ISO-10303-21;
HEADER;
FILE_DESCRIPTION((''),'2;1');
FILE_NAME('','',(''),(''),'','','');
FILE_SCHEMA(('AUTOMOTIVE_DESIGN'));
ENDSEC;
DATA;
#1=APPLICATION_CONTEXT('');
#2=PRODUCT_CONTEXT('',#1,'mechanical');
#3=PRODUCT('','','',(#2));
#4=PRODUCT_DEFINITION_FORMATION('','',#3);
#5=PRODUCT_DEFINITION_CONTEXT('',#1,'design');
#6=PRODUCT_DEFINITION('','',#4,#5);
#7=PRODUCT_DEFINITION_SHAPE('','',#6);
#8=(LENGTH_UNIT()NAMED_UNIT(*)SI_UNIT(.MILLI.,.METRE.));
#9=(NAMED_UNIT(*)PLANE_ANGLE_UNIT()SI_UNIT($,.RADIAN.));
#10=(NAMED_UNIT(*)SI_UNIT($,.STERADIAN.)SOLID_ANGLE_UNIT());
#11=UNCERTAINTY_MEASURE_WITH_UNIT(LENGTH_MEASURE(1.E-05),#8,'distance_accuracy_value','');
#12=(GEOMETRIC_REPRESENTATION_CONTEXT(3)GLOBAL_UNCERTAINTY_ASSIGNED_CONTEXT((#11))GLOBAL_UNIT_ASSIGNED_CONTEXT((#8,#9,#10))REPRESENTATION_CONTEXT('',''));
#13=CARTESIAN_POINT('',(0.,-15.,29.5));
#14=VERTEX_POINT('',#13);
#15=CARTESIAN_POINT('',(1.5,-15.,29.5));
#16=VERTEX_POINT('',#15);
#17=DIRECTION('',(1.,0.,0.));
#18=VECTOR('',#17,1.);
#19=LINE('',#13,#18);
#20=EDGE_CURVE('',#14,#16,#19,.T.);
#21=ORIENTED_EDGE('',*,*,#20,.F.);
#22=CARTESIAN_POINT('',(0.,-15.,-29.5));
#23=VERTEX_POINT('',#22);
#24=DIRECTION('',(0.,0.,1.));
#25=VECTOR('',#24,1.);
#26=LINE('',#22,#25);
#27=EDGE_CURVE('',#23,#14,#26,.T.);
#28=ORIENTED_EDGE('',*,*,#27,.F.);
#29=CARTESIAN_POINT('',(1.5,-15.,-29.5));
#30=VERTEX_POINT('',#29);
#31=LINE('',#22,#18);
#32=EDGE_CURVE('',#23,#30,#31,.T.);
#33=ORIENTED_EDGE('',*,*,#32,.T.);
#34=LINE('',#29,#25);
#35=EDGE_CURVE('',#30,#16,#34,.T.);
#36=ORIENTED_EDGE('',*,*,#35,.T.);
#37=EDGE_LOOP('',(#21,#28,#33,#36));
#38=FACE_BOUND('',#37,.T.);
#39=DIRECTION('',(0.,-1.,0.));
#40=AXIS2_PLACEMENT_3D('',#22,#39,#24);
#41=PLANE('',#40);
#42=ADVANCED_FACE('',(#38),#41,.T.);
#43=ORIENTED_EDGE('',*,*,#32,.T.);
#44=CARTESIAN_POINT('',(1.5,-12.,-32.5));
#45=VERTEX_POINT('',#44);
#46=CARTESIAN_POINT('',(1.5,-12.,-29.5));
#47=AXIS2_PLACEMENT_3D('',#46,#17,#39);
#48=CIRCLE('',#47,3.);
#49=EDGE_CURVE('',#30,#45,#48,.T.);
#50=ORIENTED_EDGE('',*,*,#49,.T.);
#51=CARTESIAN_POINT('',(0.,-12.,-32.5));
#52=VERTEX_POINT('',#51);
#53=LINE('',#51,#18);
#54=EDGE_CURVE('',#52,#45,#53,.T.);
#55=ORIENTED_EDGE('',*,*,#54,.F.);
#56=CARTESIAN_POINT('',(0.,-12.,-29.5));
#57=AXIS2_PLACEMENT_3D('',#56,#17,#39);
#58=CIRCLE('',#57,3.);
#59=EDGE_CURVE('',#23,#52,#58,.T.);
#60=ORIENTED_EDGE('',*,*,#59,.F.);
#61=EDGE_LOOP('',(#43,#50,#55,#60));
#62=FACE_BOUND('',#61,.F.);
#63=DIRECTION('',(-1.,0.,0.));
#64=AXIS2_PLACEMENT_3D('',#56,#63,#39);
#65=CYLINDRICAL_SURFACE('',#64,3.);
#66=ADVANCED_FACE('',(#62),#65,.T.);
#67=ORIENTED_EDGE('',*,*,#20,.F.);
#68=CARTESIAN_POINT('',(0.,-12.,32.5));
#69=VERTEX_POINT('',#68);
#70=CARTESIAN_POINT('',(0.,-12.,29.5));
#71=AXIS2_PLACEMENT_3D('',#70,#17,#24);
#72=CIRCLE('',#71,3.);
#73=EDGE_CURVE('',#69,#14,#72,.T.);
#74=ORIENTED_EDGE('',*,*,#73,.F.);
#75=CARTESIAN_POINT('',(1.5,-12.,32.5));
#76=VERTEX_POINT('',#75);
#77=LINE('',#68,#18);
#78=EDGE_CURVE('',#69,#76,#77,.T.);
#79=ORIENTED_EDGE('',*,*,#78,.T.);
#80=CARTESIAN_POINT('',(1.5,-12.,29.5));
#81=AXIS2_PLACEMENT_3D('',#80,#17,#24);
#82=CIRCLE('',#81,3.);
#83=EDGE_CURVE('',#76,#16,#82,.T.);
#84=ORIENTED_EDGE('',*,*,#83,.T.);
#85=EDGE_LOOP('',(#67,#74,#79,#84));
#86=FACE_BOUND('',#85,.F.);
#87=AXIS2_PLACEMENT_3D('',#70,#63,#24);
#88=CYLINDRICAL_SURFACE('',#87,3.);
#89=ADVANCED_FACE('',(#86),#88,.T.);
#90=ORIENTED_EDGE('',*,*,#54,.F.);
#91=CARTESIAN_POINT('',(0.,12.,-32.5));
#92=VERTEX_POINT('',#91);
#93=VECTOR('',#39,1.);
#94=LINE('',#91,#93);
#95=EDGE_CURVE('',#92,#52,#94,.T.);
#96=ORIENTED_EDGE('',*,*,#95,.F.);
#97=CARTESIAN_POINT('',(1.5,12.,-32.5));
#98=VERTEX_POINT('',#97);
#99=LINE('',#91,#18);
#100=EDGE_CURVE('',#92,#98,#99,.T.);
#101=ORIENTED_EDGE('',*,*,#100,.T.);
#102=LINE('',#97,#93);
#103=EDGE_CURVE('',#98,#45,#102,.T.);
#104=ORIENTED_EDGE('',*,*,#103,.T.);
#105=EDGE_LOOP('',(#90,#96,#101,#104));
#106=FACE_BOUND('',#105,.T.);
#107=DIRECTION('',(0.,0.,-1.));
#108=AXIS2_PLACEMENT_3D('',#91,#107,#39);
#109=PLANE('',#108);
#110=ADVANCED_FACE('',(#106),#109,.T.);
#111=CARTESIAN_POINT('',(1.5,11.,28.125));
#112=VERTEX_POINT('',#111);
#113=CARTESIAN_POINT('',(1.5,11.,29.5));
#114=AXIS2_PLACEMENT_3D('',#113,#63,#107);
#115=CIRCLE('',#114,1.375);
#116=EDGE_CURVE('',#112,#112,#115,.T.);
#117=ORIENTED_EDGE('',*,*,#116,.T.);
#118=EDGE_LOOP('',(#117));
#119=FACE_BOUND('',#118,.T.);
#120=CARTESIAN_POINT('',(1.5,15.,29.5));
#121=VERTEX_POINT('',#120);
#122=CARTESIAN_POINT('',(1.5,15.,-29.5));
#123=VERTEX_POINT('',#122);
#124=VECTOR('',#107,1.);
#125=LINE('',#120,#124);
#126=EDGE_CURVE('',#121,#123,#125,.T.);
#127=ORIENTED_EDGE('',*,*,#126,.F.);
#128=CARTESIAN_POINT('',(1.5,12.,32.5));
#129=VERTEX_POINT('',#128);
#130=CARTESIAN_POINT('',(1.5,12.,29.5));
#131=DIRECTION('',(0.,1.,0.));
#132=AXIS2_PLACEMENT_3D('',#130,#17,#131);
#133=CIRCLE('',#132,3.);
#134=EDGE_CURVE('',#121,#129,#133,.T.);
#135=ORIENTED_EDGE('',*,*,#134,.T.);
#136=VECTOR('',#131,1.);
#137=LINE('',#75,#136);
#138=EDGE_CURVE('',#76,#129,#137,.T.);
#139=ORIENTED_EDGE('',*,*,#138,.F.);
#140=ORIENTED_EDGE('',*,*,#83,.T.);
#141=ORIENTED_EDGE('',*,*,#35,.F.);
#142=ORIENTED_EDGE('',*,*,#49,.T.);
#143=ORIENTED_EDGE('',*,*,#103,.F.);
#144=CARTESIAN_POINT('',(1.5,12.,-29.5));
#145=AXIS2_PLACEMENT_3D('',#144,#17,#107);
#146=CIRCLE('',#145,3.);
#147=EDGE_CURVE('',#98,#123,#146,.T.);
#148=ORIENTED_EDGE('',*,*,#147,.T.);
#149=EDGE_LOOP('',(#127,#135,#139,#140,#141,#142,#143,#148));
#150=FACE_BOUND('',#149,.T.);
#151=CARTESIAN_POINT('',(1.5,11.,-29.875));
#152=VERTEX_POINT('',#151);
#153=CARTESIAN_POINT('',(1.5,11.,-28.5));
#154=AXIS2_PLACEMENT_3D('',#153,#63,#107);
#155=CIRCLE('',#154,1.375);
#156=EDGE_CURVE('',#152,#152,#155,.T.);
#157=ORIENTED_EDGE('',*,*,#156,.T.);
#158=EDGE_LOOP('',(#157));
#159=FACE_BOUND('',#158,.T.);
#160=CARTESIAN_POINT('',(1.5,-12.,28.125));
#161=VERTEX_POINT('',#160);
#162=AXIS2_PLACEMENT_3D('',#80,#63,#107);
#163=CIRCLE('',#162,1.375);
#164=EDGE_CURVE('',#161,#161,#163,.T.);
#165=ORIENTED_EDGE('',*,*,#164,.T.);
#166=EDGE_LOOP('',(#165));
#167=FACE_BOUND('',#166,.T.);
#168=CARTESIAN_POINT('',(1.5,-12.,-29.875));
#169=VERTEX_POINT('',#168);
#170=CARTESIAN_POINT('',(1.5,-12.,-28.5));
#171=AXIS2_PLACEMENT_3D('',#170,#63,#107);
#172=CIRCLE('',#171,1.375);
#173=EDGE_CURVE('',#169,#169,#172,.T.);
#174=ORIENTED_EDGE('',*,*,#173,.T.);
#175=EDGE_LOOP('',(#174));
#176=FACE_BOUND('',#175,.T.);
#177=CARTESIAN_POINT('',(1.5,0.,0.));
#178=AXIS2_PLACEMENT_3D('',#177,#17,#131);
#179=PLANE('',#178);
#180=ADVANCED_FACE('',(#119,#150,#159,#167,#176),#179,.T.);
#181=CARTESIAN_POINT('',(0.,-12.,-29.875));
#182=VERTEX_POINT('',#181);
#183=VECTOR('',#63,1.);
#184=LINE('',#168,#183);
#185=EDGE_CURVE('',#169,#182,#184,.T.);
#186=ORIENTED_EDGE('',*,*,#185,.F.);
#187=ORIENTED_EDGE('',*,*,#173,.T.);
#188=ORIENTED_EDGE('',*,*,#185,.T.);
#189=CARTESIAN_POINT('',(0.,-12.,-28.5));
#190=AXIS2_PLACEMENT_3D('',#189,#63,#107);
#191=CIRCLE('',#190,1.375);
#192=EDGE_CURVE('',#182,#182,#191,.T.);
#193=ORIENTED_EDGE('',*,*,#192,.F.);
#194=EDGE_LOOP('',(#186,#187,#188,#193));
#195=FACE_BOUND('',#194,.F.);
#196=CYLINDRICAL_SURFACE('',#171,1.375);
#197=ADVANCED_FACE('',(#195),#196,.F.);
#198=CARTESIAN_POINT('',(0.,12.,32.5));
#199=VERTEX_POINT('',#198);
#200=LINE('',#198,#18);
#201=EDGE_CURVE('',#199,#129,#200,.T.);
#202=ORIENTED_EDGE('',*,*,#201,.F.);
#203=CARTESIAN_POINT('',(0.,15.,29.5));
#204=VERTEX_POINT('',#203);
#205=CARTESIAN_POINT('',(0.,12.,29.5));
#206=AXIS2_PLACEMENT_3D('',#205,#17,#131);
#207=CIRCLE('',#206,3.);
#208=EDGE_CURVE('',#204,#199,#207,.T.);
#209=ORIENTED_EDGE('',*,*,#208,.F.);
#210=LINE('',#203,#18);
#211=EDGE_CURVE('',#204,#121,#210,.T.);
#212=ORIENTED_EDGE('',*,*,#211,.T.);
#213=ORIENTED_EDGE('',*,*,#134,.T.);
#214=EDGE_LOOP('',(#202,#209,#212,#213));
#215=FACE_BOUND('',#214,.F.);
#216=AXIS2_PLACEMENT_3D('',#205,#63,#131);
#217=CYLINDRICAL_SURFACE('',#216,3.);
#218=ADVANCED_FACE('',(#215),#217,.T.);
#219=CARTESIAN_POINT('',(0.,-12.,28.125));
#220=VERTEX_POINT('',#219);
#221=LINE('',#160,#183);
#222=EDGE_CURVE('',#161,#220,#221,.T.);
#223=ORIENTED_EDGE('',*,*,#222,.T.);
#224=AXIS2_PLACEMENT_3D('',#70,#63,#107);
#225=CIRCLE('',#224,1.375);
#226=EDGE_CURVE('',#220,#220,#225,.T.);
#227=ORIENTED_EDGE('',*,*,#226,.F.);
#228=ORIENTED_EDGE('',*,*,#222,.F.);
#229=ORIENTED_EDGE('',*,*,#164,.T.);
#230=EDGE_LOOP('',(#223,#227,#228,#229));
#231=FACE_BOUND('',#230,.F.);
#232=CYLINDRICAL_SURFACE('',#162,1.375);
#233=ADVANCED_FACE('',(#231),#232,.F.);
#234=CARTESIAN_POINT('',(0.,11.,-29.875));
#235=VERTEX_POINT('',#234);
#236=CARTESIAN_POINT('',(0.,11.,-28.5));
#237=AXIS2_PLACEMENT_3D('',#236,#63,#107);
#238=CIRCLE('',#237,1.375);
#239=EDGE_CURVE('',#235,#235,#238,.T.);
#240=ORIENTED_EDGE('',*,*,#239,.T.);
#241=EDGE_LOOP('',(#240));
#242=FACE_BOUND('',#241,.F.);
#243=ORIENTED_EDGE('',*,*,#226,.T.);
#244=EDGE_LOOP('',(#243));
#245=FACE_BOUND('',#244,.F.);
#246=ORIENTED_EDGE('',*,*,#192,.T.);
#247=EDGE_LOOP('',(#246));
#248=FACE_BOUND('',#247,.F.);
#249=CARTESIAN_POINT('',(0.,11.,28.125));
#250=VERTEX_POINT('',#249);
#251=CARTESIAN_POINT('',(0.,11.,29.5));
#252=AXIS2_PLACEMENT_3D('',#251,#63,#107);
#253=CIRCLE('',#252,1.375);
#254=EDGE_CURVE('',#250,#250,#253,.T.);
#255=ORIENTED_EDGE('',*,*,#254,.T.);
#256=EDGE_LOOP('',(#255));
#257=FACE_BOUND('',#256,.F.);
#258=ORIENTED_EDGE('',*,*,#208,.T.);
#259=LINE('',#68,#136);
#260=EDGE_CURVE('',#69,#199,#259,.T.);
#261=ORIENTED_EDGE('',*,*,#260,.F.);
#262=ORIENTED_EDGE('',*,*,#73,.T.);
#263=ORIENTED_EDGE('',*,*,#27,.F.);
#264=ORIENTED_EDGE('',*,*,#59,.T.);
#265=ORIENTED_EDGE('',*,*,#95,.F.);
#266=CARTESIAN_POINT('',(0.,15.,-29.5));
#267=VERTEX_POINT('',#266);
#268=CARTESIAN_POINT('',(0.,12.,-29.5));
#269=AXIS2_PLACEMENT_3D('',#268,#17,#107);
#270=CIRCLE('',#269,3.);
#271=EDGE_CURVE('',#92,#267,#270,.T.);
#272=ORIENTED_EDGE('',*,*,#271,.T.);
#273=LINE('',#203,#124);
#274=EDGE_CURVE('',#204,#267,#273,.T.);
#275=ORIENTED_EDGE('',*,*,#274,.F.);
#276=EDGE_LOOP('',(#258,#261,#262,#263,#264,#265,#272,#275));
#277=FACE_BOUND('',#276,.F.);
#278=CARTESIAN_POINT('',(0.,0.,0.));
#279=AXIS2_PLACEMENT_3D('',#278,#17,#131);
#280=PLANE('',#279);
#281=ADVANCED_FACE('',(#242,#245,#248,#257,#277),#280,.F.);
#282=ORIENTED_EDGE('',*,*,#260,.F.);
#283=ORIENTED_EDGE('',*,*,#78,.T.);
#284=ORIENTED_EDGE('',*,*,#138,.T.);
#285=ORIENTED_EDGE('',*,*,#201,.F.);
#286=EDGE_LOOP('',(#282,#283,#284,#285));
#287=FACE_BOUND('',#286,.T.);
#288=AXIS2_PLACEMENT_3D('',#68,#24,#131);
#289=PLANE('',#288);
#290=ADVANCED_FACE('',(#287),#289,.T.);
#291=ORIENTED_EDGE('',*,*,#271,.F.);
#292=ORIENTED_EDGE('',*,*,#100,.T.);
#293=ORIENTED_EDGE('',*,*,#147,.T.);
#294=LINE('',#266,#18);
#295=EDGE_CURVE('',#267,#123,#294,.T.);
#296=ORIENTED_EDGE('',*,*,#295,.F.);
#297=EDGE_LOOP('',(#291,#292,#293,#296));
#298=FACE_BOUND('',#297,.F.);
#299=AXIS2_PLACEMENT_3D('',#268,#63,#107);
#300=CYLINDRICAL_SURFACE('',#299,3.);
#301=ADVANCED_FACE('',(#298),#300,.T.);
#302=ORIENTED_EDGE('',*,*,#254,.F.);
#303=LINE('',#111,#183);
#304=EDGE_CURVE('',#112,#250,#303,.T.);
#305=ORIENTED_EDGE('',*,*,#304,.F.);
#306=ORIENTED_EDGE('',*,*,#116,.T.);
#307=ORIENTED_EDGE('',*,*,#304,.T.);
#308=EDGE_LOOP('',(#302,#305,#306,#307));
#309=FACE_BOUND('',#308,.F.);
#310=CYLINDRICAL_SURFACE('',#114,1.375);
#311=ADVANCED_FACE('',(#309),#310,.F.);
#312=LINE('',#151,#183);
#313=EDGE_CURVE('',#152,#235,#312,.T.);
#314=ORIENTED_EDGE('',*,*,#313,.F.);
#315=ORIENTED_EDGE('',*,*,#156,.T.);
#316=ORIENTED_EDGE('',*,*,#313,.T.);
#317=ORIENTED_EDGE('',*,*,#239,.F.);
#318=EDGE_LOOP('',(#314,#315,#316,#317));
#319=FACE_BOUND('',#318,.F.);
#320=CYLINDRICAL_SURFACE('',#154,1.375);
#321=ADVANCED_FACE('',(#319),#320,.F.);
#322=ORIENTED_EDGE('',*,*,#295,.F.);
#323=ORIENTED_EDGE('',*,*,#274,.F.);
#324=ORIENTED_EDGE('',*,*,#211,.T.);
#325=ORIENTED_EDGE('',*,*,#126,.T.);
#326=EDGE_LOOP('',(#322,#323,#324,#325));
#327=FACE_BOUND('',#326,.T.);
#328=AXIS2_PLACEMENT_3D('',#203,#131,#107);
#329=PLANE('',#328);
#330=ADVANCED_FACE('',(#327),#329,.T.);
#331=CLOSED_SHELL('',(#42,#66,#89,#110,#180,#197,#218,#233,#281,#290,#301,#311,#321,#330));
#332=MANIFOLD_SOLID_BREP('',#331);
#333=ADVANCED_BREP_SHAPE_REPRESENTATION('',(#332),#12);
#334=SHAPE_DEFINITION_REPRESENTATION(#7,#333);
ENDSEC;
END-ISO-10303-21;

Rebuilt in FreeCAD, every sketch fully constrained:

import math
import FreeCAD as App
import Part
import Sketcher

doc = App.newDocument("Part")
params = doc.addObject("Spreadsheet::Sheet", "Params")
for row, (alias, value) in enumerate([
    ("sketch1_radius", "3 mm"),
    ("sketch1_height", "59 mm"),
    ("pad1_length", "1.5 mm"),
    ("sketch2_diameter", "2.75 mm"),
    ("hole_diameter", "2.75 mm"),
], start=1):
    params.set(f"A{row}", alias)
    params.set(f"B{row}", "=" + value)
    params.setAlias(f"B{row}", alias)

body = doc.addObject("PartDesign::Body", "Body")

sketch1 = body.newObject("Sketcher::SketchObject", "Sketch")
sketch1.AttachmentSupport = (doc.getObject("YZ_Plane"), [""])
sketch1.MapMode = "FlatFace"
sketch1.addGeometry([
    Part.LineSegment(App.Vector(12, 32.5, 0), App.Vector(-12, 32.5, 0)),
    Part.ArcOfCircle(Part.Circle(App.Vector(-12, 29.5, 0), App.Vector(0, 0, 1), 3), math.radians(90), math.radians(180)),
    Part.LineSegment(App.Vector(-15, 29.5, 0), App.Vector(-15, -29.5, 0)),
    Part.ArcOfCircle(Part.Circle(App.Vector(-12, -29.5, 0), App.Vector(0, 0, 1), 3), math.radians(180), math.radians(270)),
    Part.LineSegment(App.Vector(-12, -32.5, 0), App.Vector(12, -32.5, 0)),
    Part.ArcOfCircle(Part.Circle(App.Vector(12, -29.5, 0), App.Vector(0, 0, 1), 3), math.radians(-90), math.radians(0)),
    Part.LineSegment(App.Vector(15, -29.5, 0), App.Vector(15, 29.5, 0)),
    Part.ArcOfCircle(Part.Circle(App.Vector(12, 29.5, 0), App.Vector(0, 0, 1), 3), math.radians(0), math.radians(90)),
], False)
sketch1.addConstraint([
    Sketcher.Constraint("Tangent", 0, 2, 1, 1),
    Sketcher.Constraint("Tangent", 1, 2, 2, 1),
    Sketcher.Constraint("Tangent", 2, 2, 3, 1),
    Sketcher.Constraint("Tangent", 3, 2, 4, 1),
    Sketcher.Constraint("Tangent", 4, 2, 5, 1),
    Sketcher.Constraint("Tangent", 5, 2, 6, 1),
    Sketcher.Constraint("Tangent", 6, 2, 7, 1),
    Sketcher.Constraint("Tangent", 7, 2, 0, 1),
    Sketcher.Constraint("Horizontal", 0),
    Sketcher.Constraint("Vertical", 2),
    Sketcher.Constraint("Horizontal", 4),
    Sketcher.Constraint("Vertical", 6),
    Sketcher.Constraint("Equal", 1, 3),
    Sketcher.Constraint("Equal", 3, 5),
    Sketcher.Constraint("Equal", 5, 7),
    Sketcher.Constraint("Symmetric", 1, 3, 5, 3, -1, 1),
    Sketcher.Constraint("Radius", 1, 3.0),
    Sketcher.Constraint("DistanceX", 2, 2, 5, 2, 30.0),
    Sketcher.Constraint("DistanceY", 2, 2, 2, 1, 59.0),
])
sketch1.setExpression("Constraints[16]", "Params.sketch1_radius")
sketch1.setExpression("Constraints[18]", "Params.sketch1_height")
pad1 = body.newObject("PartDesign::Pad", "Pad")
pad1.Profile = sketch1
pad1.setExpression("Length", "Params.pad1_length")

sketch2 = body.newObject("Sketcher::SketchObject", "Sketch001")
sketch2.AttachmentSupport = (doc.getObject("YZ_Plane"), [""])
sketch2.MapMode = "FlatFace"
sketch2.AttachmentOffset = App.Placement(App.Vector(0, 0, 1.5), App.Rotation())
sketch2.addGeometry([
    Part.Circle(App.Vector(11, 29.5, 0), App.Vector(0, 0, 1), 1.4),
    Part.Circle(App.Vector(11, -28.5, 0), App.Vector(0, 0, 1), 1.4),
    Part.Circle(App.Vector(-12, 29.5, 0), App.Vector(0, 0, 1), 1.4),
    Part.Circle(App.Vector(-12, -28.5, 0), App.Vector(0, 0, 1), 1.4),
], False)
sketch2.addConstraint([
    Sketcher.Constraint("Equal", 0, 1),
    Sketcher.Constraint("Equal", 1, 2),
    Sketcher.Constraint("Equal", 2, 3),
    Sketcher.Constraint("Horizontal", 0, 3, 2, 3),
    Sketcher.Constraint("Horizontal", 1, 3, 3, 3),
    Sketcher.Constraint("Vertical", 0, 3, 1, 3),
    Sketcher.Constraint("Vertical", 2, 3, 3, 3),
    Sketcher.Constraint("Diameter", 0, 2.75),
    Sketcher.Constraint("DistanceX", -1, 1, 0, 3, 11.0),
    Sketcher.Constraint("DistanceX", 2, 3, -1, 1, 12.0),
    Sketcher.Constraint("DistanceY", 1, 3, 0, 3, 58.0),
    Sketcher.Constraint("DistanceY", -1, 1, 0, 3, 29.5),
])
sketch2.setExpression("Constraints[7]", "Params.sketch2_diameter")
doc.recompute()
hole = body.newObject("PartDesign::Hole", "Hole")
hole.Profile = sketch2
hole.ThreadType = "None"
hole.setExpression("Diameter", "Params.hole_diameter")
hole.DepthType = "ThroughAll"

doc.recompute()
